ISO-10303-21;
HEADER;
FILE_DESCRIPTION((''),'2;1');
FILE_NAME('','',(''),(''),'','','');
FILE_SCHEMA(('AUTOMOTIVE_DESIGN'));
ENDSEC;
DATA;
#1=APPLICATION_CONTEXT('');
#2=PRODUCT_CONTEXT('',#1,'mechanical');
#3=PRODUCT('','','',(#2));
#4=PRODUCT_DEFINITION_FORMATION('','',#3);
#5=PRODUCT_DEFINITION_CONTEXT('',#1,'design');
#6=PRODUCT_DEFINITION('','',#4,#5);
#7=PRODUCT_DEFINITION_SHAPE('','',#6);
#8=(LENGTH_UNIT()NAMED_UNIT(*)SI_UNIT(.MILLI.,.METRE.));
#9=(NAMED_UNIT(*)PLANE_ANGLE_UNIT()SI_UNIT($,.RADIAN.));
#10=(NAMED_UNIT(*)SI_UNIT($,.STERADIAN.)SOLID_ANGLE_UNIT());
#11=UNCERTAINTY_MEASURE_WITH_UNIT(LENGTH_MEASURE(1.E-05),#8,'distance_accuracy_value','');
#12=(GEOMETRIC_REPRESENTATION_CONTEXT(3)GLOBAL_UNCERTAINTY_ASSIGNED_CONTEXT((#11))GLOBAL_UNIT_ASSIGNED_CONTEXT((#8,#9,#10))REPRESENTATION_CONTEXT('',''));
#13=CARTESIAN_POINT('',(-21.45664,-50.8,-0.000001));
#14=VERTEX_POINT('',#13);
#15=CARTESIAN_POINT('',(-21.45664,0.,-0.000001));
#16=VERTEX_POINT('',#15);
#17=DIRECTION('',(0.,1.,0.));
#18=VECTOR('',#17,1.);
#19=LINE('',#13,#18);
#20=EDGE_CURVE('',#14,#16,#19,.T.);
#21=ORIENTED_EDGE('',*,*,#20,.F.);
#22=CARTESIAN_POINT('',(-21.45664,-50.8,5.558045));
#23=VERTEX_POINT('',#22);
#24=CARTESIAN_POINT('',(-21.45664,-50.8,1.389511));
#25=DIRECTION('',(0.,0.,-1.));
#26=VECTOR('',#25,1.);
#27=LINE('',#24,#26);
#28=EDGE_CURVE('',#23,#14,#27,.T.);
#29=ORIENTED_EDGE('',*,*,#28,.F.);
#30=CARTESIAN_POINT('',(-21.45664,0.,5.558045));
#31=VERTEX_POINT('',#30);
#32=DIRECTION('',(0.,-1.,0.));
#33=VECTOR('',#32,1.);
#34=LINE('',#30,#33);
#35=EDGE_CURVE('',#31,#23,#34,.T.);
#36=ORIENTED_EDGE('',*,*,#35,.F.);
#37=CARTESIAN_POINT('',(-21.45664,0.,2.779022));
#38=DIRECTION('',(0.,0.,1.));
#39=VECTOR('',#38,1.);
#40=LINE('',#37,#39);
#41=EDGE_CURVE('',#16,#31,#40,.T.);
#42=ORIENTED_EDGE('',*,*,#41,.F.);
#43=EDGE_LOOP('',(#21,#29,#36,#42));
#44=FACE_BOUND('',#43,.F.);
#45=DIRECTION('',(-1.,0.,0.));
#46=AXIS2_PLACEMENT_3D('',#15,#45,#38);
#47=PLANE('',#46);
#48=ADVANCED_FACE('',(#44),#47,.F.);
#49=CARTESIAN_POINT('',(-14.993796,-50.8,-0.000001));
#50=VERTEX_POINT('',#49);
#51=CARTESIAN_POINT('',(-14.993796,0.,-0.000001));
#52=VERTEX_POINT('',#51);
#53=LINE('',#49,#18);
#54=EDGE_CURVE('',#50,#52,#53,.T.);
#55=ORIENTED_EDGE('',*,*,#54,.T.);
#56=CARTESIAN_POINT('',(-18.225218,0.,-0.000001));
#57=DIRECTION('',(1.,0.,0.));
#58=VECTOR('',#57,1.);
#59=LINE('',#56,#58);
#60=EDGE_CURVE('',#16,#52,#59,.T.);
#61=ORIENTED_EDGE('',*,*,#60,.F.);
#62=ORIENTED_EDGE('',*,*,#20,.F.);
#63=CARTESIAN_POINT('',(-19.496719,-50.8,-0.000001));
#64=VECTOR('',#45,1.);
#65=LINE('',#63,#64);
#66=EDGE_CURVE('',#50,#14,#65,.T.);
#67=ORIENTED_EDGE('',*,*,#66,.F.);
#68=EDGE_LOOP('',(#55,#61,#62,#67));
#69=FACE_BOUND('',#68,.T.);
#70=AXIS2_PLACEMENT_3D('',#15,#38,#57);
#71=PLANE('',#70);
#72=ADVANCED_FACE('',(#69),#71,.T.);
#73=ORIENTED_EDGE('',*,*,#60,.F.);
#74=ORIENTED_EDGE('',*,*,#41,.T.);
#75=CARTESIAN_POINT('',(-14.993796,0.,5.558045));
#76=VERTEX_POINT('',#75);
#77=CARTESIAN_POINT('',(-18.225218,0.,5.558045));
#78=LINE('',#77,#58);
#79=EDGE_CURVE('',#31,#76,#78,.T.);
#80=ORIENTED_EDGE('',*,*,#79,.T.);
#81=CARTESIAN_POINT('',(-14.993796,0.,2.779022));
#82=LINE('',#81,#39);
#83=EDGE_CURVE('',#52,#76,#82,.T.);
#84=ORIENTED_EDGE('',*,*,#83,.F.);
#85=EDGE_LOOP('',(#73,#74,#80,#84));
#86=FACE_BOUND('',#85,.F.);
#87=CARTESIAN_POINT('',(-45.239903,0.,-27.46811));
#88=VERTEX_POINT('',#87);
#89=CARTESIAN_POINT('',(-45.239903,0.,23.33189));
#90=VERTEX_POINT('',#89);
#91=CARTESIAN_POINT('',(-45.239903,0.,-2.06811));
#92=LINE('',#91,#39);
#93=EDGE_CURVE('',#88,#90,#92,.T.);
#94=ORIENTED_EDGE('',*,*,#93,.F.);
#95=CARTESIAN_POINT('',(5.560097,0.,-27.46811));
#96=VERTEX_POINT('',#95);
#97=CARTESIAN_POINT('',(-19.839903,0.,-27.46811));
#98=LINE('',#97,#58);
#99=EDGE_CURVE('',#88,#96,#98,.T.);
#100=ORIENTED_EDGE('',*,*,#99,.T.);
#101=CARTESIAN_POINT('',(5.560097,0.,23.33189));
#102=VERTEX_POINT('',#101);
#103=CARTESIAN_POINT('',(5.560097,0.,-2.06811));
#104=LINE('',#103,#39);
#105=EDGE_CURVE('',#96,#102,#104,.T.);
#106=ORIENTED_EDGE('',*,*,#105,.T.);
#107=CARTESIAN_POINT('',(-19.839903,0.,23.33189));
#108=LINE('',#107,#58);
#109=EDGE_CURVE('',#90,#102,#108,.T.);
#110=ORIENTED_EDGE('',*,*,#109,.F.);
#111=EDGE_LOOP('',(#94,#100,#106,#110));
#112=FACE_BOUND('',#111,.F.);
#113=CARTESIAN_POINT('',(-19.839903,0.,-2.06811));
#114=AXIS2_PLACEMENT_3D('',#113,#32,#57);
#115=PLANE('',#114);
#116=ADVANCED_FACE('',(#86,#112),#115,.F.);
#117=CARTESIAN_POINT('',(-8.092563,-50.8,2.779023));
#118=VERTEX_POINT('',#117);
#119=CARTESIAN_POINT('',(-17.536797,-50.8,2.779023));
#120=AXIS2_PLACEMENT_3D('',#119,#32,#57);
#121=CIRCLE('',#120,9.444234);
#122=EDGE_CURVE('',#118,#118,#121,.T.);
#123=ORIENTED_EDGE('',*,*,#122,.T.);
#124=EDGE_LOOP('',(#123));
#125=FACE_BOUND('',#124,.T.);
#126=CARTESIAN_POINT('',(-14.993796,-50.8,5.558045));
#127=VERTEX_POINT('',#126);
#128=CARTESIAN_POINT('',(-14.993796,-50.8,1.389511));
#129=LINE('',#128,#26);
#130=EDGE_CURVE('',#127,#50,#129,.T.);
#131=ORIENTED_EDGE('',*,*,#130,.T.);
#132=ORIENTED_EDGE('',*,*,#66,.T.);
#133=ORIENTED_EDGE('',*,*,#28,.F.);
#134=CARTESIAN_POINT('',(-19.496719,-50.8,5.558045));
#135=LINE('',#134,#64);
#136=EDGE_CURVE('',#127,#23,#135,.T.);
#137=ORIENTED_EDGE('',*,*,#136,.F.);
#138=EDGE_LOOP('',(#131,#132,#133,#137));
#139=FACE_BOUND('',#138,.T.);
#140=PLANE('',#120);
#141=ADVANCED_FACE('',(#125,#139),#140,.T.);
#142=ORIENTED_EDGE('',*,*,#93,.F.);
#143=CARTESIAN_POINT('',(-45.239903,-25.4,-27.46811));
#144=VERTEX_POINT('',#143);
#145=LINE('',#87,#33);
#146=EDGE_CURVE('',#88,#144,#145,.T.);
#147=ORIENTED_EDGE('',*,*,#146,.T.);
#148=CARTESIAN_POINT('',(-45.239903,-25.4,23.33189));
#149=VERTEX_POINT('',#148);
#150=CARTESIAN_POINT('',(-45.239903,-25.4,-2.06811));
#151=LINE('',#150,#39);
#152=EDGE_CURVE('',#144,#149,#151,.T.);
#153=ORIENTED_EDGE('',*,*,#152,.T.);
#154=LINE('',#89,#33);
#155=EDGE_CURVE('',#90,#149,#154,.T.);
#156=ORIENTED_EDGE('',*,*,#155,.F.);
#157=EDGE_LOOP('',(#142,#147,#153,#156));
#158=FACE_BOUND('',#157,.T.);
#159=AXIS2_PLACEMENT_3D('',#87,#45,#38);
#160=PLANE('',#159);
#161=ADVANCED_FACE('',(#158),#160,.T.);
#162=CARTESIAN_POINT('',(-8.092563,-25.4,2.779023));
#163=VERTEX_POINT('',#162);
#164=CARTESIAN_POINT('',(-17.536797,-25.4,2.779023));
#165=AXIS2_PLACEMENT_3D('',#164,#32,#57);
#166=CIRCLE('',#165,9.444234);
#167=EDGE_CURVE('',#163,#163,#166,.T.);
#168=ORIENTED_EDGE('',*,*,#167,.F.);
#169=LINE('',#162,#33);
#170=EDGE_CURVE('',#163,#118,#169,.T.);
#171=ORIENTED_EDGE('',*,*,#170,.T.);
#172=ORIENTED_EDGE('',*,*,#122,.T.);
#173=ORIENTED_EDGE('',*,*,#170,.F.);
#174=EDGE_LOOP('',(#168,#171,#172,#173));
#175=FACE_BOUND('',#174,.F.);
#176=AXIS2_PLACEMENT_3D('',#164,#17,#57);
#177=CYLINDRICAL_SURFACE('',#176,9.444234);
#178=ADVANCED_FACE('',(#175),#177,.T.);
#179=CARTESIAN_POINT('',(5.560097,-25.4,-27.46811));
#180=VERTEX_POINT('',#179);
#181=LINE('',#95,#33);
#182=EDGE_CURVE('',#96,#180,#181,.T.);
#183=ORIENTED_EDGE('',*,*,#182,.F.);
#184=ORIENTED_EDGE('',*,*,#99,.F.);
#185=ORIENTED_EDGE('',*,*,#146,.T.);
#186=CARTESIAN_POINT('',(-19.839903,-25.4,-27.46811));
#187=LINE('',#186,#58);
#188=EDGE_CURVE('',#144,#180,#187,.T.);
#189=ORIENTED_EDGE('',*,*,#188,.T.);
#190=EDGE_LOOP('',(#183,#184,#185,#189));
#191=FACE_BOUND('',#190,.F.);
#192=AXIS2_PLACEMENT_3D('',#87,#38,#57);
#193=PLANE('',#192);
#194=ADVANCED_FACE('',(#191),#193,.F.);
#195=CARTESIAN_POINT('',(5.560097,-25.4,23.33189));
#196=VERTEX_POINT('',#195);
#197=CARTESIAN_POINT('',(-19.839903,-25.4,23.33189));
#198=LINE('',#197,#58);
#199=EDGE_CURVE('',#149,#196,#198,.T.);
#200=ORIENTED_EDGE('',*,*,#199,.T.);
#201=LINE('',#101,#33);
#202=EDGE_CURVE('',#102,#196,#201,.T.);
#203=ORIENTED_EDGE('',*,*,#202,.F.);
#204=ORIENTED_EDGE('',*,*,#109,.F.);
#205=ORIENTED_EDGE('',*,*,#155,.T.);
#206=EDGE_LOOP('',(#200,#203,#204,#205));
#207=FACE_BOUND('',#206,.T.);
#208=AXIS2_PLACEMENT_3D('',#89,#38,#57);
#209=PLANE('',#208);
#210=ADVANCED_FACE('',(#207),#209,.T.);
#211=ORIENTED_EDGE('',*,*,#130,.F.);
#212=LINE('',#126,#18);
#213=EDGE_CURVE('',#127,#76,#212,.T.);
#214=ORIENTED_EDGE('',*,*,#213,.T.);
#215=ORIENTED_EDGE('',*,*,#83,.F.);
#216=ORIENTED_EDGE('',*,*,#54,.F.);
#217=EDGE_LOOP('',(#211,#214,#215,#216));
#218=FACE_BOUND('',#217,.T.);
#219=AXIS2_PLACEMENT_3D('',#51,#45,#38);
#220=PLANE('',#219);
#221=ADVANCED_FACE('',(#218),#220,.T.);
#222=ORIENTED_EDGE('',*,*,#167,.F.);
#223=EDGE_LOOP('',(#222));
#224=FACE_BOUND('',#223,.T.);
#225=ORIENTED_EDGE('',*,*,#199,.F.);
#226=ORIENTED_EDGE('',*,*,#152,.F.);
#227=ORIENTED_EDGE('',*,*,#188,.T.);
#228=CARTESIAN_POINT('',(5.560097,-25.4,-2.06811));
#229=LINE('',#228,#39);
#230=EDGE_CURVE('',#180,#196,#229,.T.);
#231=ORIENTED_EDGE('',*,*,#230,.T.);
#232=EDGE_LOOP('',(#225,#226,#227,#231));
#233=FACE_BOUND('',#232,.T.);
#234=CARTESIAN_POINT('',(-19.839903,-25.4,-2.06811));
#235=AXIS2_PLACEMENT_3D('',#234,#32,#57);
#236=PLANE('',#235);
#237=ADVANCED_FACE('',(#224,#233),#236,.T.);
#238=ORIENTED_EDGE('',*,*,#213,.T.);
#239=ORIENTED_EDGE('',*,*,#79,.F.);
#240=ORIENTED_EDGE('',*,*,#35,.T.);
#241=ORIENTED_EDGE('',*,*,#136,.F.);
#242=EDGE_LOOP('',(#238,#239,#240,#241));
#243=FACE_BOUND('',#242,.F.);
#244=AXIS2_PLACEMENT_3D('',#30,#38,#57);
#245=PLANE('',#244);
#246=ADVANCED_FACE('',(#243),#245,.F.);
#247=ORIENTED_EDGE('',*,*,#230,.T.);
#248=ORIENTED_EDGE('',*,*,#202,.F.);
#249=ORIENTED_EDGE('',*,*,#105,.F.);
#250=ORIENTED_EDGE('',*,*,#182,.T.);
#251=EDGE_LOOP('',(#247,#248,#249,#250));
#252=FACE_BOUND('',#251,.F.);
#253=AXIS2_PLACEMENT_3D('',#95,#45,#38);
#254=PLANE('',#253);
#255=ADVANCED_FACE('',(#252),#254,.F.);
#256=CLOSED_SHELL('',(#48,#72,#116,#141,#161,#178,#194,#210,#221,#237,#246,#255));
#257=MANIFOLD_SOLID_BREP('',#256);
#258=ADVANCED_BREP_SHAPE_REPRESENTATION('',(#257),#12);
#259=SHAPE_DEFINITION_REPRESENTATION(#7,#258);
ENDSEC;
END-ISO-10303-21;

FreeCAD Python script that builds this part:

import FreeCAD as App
import Part
import Sketcher

V = App.Vector
Q = App.Units.Quantity

doc = App.newDocument("Part")
params = doc.addObject("Spreadsheet::Sheet", "Params")
for row, (alias, value) in enumerate([
    ("sketch1_width", "2 in"),
    ("pad1_length", "1 in"),
    ("pad2_length", "1 in"),
], start=1):
    params.set(f"A{row}", alias)
    params.set(f"B{row}", "=" + value)
    params.setAlias(f"B{row}", alias)

body = doc.addObject("PartDesign::Body", "Body")

sketch1 = doc.addObject("Sketcher::SketchObject", "Sketch")
body.addObject(sketch1)
sketch1.AttachmentSupport = (doc.XZ_Plane, [""])
sketch1.MapMode = "FlatFace"
sketch1.addGeometry(Part.LineSegment(V(-45.239903, 23.33189, 0), V(-45.239903, -27.46811, 0)), False)
sketch1.addGeometry(Part.LineSegment(V(-45.239903, -27.46811, 0), V(5.560097, -27.46811, 0)), False)
sketch1.addGeometry(Part.LineSegment(V(5.560097, -27.46811, 0), V(5.560097, 23.33189, 0)), False)
sketch1.addGeometry(Part.LineSegment(V(5.560097, 23.33189, 0), V(-45.239903, 23.33189, 0)), False)
sketch1.addGeometry(Part.LineSegment(V(-14.993796, 0, 0), V(-21.45664, 0, 0)), False)
sketch1.addGeometry(Part.LineSegment(V(-21.45664, 0, 0), V(-21.45664, 5.558045, 0)), False)
sketch1.addGeometry(Part.LineSegment(V(-21.45664, 5.558045, 0), V(-14.993796, 5.558045, 0)), False)
sketch1.addGeometry(Part.LineSegment(V(-14.993796, 5.558045, 0), V(-14.993796, 0, 0)), False)
sketch1.addConstraint(Sketcher.Constraint("Coincident", 0, 2, 1, 1))
sketch1.addConstraint(Sketcher.Constraint("Coincident", 1, 2, 2, 1))
sketch1.addConstraint(Sketcher.Constraint("Coincident", 2, 2, 3, 1))
sketch1.addConstraint(Sketcher.Constraint("Coincident", 3, 2, 0, 1))
sketch1.addConstraint(Sketcher.Constraint("Coincident", 4, 2, 5, 1))
sketch1.addConstraint(Sketcher.Constraint("Coincident", 5, 2, 6, 1))
sketch1.addConstraint(Sketcher.Constraint("Coincident", 6, 2, 7, 1))
sketch1.addConstraint(Sketcher.Constraint("Coincident", 7, 2, 4, 1))
sketch1.addConstraint(Sketcher.Constraint("Vertical", 0))
sketch1.addConstraint(Sketcher.Constraint("Horizontal", 1))
sketch1.addConstraint(Sketcher.Constraint("Vertical", 2))
sketch1.addConstraint(Sketcher.Constraint("Horizontal", 3))
sketch1.addConstraint(Sketcher.Constraint("Horizontal", 4))
sketch1.addConstraint(Sketcher.Constraint("Vertical", 5))
sketch1.addConstraint(Sketcher.Constraint("Horizontal", 6))
sketch1.addConstraint(Sketcher.Constraint("Vertical", 7))
sketch1.addConstraint(Sketcher.Constraint("PointOnObject", 4, 2, -1))
sketch1.addConstraint(Sketcher.Constraint("Equal", 3, 0))
sketch1.addConstraint(Sketcher.Constraint("DistanceX", 1, 1, 1, 2, Q("2 in")))
sketch1.addConstraint(Sketcher.Constraint("DistanceX", 4, 2, 4, 1, Q("6.462844 mm")))
sketch1.addConstraint(Sketcher.Constraint("DistanceY", 5, 1, 5, 2, Q("5.558045 mm")))
sketch1.addConstraint(Sketcher.Constraint("DistanceY", 0, 2, -1, 1, Q("27.46811 mm")))
sketch1.addConstraint(Sketcher.Constraint("DistanceX", 4, 2, -1, 1, Q("21.45664 mm")))
sketch1.addConstraint(Sketcher.Constraint("DistanceX", 0, 2, -1, 1, Q("45.239903 mm")))
sketch1.setExpression("Constraints[18]", "Params.sketch1_width")
pad1 = doc.addObject("PartDesign::Pad", "Pad")
body.addObject(pad1)
pad1.Profile = sketch1
pad1.setExpression("Length", "Params.pad1_length")

sketch2 = doc.addObject("Sketcher::SketchObject", "Sketch001")
body.addObject(sketch2)
sketch2.AttachmentSupport = (doc.XZ_Plane, [""])
sketch2.MapMode = "FlatFace"
sketch2.AttachmentOffset = App.Placement(V(0, 0, 1 * 25.4), App.Rotation())
sketch2.addGeometry(Part.Circle(V(-17.536797, 2.779023, 0), V(0, 0, 1), 9.444234), False)
sketch2.addConstraint(Sketcher.Constraint("Diameter", 0, Q("18.888468 mm")))
sketch2.addConstraint(Sketcher.Constraint("DistanceX", 0, 3, -1, 1, Q("17.536797 mm")))
sketch2.addConstraint(Sketcher.Constraint("DistanceY", -1, 1, 0, 3, Q("2.779023 mm")))
pad2 = doc.addObject("PartDesign::Pad", "Pad001")
body.addObject(pad2)
pad2.Profile = sketch2
pad2.setExpression("Length", "Params.pad2_length")

sketch3 = doc.addObject("Sketcher::SketchObject", "Sketch002")
body.addObject(sketch3)
sketch3.AttachmentSupport = (doc.XZ_Plane, [""])
sketch3.MapMode = "FlatFace"
sketch3.addGeometry(Part.LineSegment(V(-21.45664, 5.558045, 0), V(-21.45664, 0, 0)), False)
sketch3.addGeometry(Part.LineSegment(V(-21.45664, 0, 0), V(-14.993796, 0, 0)), False)
sketch3.addGeometry(Part.LineSegment(V(-14.993796, 0, 0), V(-14.993796, 5.558045, 0)), False)
sketch3.addGeometry(Part.LineSegment(V(-14.993796, 5.558045, 0), V(-21.45664, 5.558045, 0)), False)
sketch3.addConstraint(Sketcher.Constraint("Coincident", 0, 2, 1, 1))
sketch3.addConstraint(Sketcher.Constraint("Coincident", 1, 2, 2, 1))
sketch3.addConstraint(Sketcher.Constraint("Coincident", 2, 2, 3, 1))
sketch3.addConstraint(Sketcher.Constraint("Coincident", 3, 2, 0, 1))
sketch3.addConstraint(Sketcher.Constraint("Vertical", 0))
sketch3.addConstraint(Sketcher.Constraint("Horizontal", 1))
sketch3.addConstraint(Sketcher.Constraint("Vertical", 2))
sketch3.addConstraint(Sketcher.Constraint("Horizontal", 3))
sketch3.addConstraint(Sketcher.Constraint("PointOnObject", 0, 2, -1))
sketch3.addConstraint(Sketcher.Constraint("DistanceX", 1, 1, 1, 2, Q("6.462844 mm")))
sketch3.addConstraint(Sketcher.Constraint("DistanceY", 0, 2, 0, 1, Q("5.558045 mm")))
sketch3.addConstraint(Sketcher.Constraint("DistanceX", 0, 2, -1, 1, Q("21.45664 mm")))
pocket1 = doc.addObject("PartDesign::Pocket", "Pocket")
body.addObject(pocket1)
pocket1.Profile = sketch3
pocket1.Type = "ThroughAll"
pocket1.Reversed = True

doc.recompute()
